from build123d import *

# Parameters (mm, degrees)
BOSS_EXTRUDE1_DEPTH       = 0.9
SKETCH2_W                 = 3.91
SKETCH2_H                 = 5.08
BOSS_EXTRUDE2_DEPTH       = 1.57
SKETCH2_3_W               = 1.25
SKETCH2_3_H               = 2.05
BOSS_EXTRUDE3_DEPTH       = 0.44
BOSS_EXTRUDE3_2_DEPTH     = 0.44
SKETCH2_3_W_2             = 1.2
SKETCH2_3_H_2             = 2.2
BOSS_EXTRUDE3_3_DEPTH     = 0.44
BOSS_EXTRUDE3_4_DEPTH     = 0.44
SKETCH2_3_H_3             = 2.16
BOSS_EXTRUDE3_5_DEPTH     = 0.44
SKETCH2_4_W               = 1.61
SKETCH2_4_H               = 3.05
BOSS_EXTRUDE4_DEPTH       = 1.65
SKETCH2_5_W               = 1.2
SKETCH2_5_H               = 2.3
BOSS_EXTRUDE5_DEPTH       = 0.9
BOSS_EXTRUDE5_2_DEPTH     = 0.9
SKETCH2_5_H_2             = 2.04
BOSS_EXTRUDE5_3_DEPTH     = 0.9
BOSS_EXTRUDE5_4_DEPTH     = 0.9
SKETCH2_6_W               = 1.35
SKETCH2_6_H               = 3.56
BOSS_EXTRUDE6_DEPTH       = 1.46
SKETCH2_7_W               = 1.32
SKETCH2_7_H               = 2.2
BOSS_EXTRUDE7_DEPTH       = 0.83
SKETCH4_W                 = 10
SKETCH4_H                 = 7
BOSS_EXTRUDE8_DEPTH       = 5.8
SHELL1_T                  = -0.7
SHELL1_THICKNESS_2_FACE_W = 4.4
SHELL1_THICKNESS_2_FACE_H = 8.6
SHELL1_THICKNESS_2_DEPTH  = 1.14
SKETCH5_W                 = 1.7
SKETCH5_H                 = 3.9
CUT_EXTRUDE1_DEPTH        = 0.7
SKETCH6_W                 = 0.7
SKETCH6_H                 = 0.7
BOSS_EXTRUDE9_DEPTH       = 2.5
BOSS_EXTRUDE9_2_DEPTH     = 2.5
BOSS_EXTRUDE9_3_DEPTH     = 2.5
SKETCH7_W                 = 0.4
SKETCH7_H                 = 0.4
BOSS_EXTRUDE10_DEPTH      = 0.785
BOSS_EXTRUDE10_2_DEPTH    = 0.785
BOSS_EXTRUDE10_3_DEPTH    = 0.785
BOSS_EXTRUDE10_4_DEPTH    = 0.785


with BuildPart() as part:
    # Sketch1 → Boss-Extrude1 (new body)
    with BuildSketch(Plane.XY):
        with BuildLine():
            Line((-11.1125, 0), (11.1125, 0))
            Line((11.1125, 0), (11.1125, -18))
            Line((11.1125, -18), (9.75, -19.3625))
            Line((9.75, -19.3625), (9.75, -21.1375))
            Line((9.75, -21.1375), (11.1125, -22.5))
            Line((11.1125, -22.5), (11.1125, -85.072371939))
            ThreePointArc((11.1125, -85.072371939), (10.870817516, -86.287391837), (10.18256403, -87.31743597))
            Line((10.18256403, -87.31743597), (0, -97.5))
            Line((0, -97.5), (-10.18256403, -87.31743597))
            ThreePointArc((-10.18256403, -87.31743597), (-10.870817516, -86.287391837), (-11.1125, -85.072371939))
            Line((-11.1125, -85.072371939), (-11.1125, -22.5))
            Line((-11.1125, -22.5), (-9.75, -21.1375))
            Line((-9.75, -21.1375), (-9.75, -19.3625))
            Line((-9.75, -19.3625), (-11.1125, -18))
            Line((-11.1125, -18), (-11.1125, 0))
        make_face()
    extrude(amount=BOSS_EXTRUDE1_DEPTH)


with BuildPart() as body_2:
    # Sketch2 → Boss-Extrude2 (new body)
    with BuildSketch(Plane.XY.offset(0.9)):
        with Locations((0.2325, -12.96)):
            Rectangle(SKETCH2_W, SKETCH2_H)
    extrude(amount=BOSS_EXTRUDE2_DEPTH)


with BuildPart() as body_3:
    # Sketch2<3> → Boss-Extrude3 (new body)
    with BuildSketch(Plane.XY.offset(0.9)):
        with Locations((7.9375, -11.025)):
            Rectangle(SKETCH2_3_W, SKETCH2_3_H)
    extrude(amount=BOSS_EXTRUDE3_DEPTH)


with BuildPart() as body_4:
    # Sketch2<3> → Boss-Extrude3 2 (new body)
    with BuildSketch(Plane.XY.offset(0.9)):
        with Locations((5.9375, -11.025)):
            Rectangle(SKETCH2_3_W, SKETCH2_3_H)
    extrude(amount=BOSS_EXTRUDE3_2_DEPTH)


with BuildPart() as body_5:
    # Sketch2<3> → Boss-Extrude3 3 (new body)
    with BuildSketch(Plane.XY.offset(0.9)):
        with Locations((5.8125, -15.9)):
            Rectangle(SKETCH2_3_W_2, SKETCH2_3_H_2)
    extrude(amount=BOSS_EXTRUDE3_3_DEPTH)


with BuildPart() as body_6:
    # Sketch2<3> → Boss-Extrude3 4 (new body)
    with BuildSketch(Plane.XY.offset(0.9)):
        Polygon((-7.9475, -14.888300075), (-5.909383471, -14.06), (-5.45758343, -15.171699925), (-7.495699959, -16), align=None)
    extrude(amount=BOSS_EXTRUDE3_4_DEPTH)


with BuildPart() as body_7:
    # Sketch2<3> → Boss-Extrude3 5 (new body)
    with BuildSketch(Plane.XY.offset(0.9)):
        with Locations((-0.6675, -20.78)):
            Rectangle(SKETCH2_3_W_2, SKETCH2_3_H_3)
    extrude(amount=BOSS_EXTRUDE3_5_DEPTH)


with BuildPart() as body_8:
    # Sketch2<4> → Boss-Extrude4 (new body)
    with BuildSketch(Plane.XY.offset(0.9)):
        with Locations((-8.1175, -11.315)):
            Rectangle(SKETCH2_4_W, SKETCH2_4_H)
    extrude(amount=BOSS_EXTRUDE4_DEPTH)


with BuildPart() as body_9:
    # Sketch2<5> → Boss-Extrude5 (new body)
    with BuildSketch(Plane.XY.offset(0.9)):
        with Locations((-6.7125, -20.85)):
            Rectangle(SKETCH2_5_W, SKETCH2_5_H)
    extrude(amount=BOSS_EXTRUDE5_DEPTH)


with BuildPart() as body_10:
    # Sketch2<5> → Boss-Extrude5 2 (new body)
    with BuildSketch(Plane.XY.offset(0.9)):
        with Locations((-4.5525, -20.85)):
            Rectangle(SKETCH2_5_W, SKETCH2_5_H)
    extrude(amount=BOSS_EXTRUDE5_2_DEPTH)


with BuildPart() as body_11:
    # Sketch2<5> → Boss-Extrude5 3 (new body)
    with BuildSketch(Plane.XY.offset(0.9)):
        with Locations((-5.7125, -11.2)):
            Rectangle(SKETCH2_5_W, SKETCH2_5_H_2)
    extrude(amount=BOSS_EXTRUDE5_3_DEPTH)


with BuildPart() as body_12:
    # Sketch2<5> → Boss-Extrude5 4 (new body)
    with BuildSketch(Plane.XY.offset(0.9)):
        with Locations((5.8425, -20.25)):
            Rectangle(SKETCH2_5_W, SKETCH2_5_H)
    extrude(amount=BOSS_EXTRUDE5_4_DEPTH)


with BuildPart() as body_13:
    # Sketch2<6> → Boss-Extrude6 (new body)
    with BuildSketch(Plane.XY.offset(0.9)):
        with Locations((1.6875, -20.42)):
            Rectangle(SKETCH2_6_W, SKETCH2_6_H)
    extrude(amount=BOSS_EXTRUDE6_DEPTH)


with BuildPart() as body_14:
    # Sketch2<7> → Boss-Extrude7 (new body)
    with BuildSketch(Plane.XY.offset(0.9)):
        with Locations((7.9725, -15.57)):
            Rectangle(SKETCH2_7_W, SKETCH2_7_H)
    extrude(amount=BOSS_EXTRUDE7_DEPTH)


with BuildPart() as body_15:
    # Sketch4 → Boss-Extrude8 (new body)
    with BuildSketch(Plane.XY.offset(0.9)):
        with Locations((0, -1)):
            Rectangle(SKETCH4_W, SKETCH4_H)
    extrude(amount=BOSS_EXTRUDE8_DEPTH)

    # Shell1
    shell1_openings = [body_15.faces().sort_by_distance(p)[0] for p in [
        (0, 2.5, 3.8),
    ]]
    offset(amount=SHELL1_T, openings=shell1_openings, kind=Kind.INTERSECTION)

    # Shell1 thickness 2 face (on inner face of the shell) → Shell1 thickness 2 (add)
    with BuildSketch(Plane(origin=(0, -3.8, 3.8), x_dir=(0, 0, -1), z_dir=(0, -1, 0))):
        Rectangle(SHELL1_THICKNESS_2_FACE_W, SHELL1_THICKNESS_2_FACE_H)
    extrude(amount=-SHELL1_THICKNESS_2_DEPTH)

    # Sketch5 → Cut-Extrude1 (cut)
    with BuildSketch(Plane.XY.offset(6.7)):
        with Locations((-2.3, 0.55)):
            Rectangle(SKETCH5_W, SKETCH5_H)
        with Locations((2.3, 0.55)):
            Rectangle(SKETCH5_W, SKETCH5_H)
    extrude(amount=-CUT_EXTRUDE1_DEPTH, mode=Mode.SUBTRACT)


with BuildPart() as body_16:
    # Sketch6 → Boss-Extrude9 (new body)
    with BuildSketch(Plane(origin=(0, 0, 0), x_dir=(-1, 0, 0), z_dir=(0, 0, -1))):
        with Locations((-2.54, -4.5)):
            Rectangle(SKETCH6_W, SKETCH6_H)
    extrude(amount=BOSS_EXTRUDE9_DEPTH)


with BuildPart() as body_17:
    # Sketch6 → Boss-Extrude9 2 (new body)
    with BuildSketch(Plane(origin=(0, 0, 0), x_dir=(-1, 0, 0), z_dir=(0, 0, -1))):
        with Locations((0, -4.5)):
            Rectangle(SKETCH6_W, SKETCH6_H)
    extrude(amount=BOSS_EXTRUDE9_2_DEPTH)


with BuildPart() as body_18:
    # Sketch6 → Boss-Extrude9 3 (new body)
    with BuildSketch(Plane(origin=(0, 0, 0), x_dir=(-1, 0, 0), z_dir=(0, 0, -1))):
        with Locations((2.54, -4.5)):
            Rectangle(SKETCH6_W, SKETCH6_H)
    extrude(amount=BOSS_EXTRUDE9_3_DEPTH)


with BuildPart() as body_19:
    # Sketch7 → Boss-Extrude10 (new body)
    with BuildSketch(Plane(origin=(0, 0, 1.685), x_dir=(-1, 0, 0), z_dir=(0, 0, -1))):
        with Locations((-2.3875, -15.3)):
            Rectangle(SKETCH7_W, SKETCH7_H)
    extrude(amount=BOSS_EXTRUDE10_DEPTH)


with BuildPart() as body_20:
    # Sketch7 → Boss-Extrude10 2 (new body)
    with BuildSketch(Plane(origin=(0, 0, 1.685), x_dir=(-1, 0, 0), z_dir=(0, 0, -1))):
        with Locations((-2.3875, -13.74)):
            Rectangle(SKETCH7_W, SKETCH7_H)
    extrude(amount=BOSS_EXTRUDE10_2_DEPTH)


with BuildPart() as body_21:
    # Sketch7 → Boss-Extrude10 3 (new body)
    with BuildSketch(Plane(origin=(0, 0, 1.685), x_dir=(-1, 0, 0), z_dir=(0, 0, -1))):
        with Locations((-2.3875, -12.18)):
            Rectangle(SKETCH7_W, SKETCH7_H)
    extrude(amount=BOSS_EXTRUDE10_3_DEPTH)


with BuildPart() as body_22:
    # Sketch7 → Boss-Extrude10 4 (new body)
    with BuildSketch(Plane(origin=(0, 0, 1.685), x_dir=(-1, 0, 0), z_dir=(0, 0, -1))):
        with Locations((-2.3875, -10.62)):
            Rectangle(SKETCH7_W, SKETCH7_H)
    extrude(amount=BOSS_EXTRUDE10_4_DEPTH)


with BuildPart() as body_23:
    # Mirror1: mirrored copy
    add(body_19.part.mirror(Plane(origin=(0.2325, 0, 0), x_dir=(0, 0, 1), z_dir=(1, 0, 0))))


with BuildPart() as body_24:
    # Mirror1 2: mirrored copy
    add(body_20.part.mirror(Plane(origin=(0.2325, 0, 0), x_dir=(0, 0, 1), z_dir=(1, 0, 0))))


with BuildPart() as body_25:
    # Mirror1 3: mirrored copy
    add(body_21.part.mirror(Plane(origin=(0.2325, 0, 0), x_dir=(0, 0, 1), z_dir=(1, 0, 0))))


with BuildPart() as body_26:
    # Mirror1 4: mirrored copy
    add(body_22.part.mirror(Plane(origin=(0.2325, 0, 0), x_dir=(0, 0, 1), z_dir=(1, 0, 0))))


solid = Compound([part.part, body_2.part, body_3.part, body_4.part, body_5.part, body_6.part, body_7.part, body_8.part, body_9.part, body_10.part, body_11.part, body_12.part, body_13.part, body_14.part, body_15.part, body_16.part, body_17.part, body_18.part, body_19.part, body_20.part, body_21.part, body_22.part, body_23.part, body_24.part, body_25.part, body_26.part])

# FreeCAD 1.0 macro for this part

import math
import FreeCAD as App
import Part
import Sketcher
Q = App.Units.Quantity


def faces_at(feature, points):
    """Names of the faces that lie closest to the given points."""
    faces = feature.Shape.Faces
    near = lambda p: min(range(len(faces)), key=lambda i: faces[i].distToShape(Part.Vertex(*p))[0])
    return sorted({f"Face{near(p) + 1}" for p in points})

doc = App.newDocument("Part")
body = doc.addObject("PartDesign::Body", "Body")

# Sketch on XY plane
sketch1 = doc.addObject("Sketcher::SketchObject", "Sketch")
body.addObject(sketch1)
sketch1.AttachmentSupport = (doc.XY_Plane, [""])
sketch1.MapMode = "FlatFace"
sketch1.addGeometry([
    Part.LineSegment(App.Vector(11.1, 0, 0), App.Vector(-11.1, 0, 0)),  # 0
    Part.LineSegment(App.Vector(-11.1, 0, 0), App.Vector(-11.1, -18, 0)),  # 1
    Part.LineSegment(App.Vector(-11.1, -18, 0), App.Vector(-9.8, -19.4, 0)),  # 2
    Part.LineSegment(App.Vector(-9.8, -19.4, 0), App.Vector(-9.8, -21.1, 0)),  # 3
    Part.LineSegment(App.Vector(-9.8, -21.1, 0), App.Vector(-11.1, -22.5, 0)),  # 4
    Part.LineSegment(App.Vector(-11.1, -22.5, 0), App.Vector(-11.1, -85.1, 0)),  # 5
    Part.ArcOfCircle(Part.Circle(App.Vector(-7.9, -85.1, 0), App.Vector(0, 0, 1), 3.2), math.radians(180), math.radians(225)),  # 6
    Part.LineSegment(App.Vector(-10.2, -87.3, 0), App.Vector(0, -97.5, 0)),  # 7
    Part.LineSegment(App.Vector(0, -97.5, 0), App.Vector(10.2, -87.3, 0)),  # 8
    Part.ArcOfCircle(Part.Circle(App.Vector(7.9, -85.1, 0), App.Vector(0, 0, 1), 3.2), math.radians(-45), math.radians(0)),  # 9
    Part.LineSegment(App.Vector(11.1, -85.1, 0), App.Vector(11.1, -22.5, 0)),  # 10
    Part.LineSegment(App.Vector(11.1, -22.5, 0), App.Vector(9.8, -21.1, 0)),  # 11
    Part.LineSegment(App.Vector(9.8, -21.1, 0), App.Vector(9.8, -19.4, 0)),  # 12
    Part.LineSegment(App.Vector(9.8, -19.4, 0), App.Vector(11.1, -18, 0)),  # 13
    Part.LineSegment(App.Vector(11.1, -18, 0), App.Vector(11.1, 0, 0)),  # 14
], False)
sketch1.addConstraint([
    Sketcher.Constraint("Coincident", 0, 2, 1, 1),
    Sketcher.Constraint("Coincident", 1, 2, 2, 1),
    Sketcher.Constraint("Coincident", 2, 2, 3, 1),
    Sketcher.Constraint("Coincident", 3, 2, 4, 1),
    Sketcher.Constraint("Coincident", 4, 2, 5, 1),
    Sketcher.Constraint("Tangent", 5, 2, 6, 1),
    Sketcher.Constraint("Tangent", 6, 2, 7, 1),
    Sketcher.Constraint("Coincident", 7, 2, 8, 1),
    Sketcher.Constraint("Tangent", 8, 2, 9, 1),
    Sketcher.Constraint("Tangent", 9, 2, 10, 1),
    Sketcher.Constraint("Coincident", 10, 2, 11, 1),
    Sketcher.Constraint("Coincident", 11, 2, 12, 1),
    Sketcher.Constraint("Coincident", 12, 2, 13, 1),
    Sketcher.Constraint("Coincident", 13, 2, 14, 1),
    Sketcher.Constraint("Coincident", 14, 2, 0, 1),
    Sketcher.Constraint("Horizontal", 0),
    Sketcher.Constraint("Vertical", 1),
    Sketcher.Constraint("Vertical", 3),
    Sketcher.Constraint("Vertical", 5),
    Sketcher.Constraint("Vertical", 10),
    Sketcher.Constraint("Vertical", 12),
    Sketcher.Constraint("Vertical", 14),
    Sketcher.Constraint("Equal", 6, 9),
    Sketcher.Constraint("Symmetric", 0, 2, 14, 2, -1, 1),
    Sketcher.Constraint("Symmetric", 6, 3, 9, 3, -2),
    Sketcher.Constraint("Symmetric", 3, 2, 11, 2, -2),
    Sketcher.Constraint("PointOnObject", 7, 2, -2),
    Sketcher.Constraint("Perpendicular", 2, 4),
    Sketcher.Constraint("Perpendicular", 4, 7),
    Sketcher.Constraint("Perpendicular", 7, 8),
    Sketcher.Constraint("Perpendicular", 8, 11),
    Sketcher.Constraint("Perpendicular", 11, 13),
    Sketcher.Constraint("Horizontal", 2, 2, 12, 2),
    Sketcher.Constraint("Vertical", 1, 2, 4, 2),
    Sketcher.Constraint("DistanceY", 1, 2, 1, 1, Q("18 mm")),
    Sketcher.Constraint("Radius", 6, Q("3.175 mm")),
    Sketcher.Constraint("DistanceY", 7, 2, 4, 2, Q("75 mm")),
    Sketcher.Constraint("DistanceY", 4, 2, -1, 1, Q("22.5 mm")),
    Sketcher.Constraint("DistanceX", 3, 2, 11, 2, Q("19.5 mm")),
    Sketcher.Constraint("DistanceX", 0, 2, 0, 1, Q("22.225 mm")),
])
pad1 = doc.addObject("PartDesign::Pad", "Pad")
body.addObject(pad1)
pad1.Profile = sketch1
pad1.Length = 0.9
body2 = doc.addObject("PartDesign::Body", "Body001")

# Sketch on XY plane
sketch2 = doc.addObject("Sketcher::SketchObject", "Sketch001")
body2.addObject(sketch2)
sketch2.AttachmentSupport = (doc.getObject("XY_Plane001"), [""])
sketch2.MapMode = "FlatFace"
sketch2.AttachmentOffset = App.Placement(App.Vector(0, 0, 0.9), App.Rotation())
sketch2.addGeometry([
    Part.LineSegment(App.Vector(-1.7, -10.4, 0), App.Vector(-1.7, -15.5, 0)),
    Part.LineSegment(App.Vector(-1.7, -15.5, 0), App.Vector(2.2, -15.5, 0)),
    Part.LineSegment(App.Vector(2.2, -15.5, 0), App.Vector(2.2, -10.4, 0)),
    Part.LineSegment(App.Vector(2.2, -10.4, 0), App.Vector(-1.7, -10.4, 0)),
], False)
sketch2.addConstraint([
    Sketcher.Constraint("Coincident", 0, 2, 1, 1),
    Sketcher.Constraint("Coincident", 1, 2, 2, 1),
    Sketcher.Constraint("Coincident", 2, 2, 3, 1),
    Sketcher.Constraint("Coincident", 3, 2, 0, 1),
    Sketcher.Constraint("Vertical", 0),
    Sketcher.Constraint("Horizontal", 1),
    Sketcher.Constraint("Vertical", 2),
    Sketcher.Constraint("Horizontal", 3),
    Sketcher.Constraint("DistanceX", 1, 1, 1, 2, Q("3.91 mm")),
    Sketcher.Constraint("DistanceY", 0, 2, 0, 1, Q("5.08 mm")),
    Sketcher.Constraint("DistanceY", 0, 2, -1, 1, Q("15.5 mm")),
    Sketcher.Constraint("DistanceX", 0, 2, -1, 1, Q("1.7225 mm")),
])
pad2 = doc.addObject("PartDesign::Pad", "Pad001")
body2.addObject(pad2)
pad2.Profile = sketch2
pad2.Length = 1.57
body3 = doc.addObject("PartDesign::Body", "Body002")

# Sketch on XY plane
sketch3 = doc.addObject("Sketcher::SketchObject", "Sketch002")
body3.addObject(sketch3)
sketch3.AttachmentSupport = (doc.getObject("XY_Plane002"), [""])
sketch3.MapMode = "FlatFace"
sketch3.AttachmentOffset = App.Placement(App.Vector(0, 0, 0.9), App.Rotation())
sketch3.addGeometry([
    Part.LineSegment(App.Vector(7.3, -10, 0), App.Vector(7.3, -12.1, 0)),
    Part.LineSegment(App.Vector(7.3, -12.1, 0), App.Vector(8.6, -12.1, 0)),
    Part.LineSegment(App.Vector(8.6, -12.1, 0), App.Vector(8.6, -10, 0)),
    Part.LineSegment(App.Vector(8.6, -10, 0), App.Vector(7.3, -10, 0)),
], False)
sketch3.addConstraint([
    Sketcher.Constraint("Coincident", 0, 2, 1, 1),
    Sketcher.Constraint("Coincident", 1, 2, 2, 1),
    Sketcher.Constraint("Coincident", 2, 2, 3, 1),
    Sketcher.Constraint("Coincident", 3, 2, 0, 1),
    Sketcher.Constraint("Vertical", 0),
    Sketcher.Constraint("Horizontal", 1),
    Sketcher.Constraint("Vertical", 2),
    Sketcher.Constraint("Horizontal", 3),
    Sketcher.Constraint("DistanceY", 2, 2, -1, 1, Q("10 mm")),
    Sketcher.Constraint("DistanceX", 1, 1, 1, 2, Q("1.25 mm")),
    Sketcher.Constraint("DistanceY", 0, 2, 0, 1, Q("2.05 mm")),
    Sketcher.Constraint("DistanceX", -1, 1, 0, 2, Q("7.3125 mm")),
])
pad3 = doc.addObject("PartDesign::Pad", "Pad002")
body3.addObject(pad3)
pad3.Profile = sketch3
pad3.Length = 0.44
body4 = doc.addObject("PartDesign::Body", "Body003")

# Sketch on XY plane
sketch4 = doc.addObject("Sketcher::SketchObject", "Sketch003")
body4.addObject(sketch4)
sketch4.AttachmentSupport = (doc.getObject("XY_Plane003"), [""])
sketch4.MapMode = "FlatFace"
sketch4.AttachmentOffset = App.Placement(App.Vector(0, 0, 0.9), App.Rotation())
sketch4.addGeometry([
    Part.LineSegment(App.Vector(5.3, -10, 0), App.Vector(5.3, -12.1, 0)),
    Part.LineSegment(App.Vector(5.3, -12.1, 0), App.Vector(6.6, -12.1, 0)),
    Part.LineSegment(App.Vector(6.6, -12.1, 0), App.Vector(6.6, -10, 0)),
    Part.LineSegment(App.Vector(6.6, -10, 0), App.Vector(5.3, -10, 0)),
], False)
sketch4.addConstraint([
    Sketcher.Constraint("Coincident", 0, 2, 1, 1),
    Sketcher.Constraint("Coincident", 1, 2, 2, 1),
    Sketcher.Constraint("Coincident", 2, 2, 3, 1),
    Sketcher.Constraint("Coincident", 3, 2, 0, 1),
    Sketcher.Constraint("Vertical", 0),
    Sketcher.Constraint("Horizontal", 1),
    Sketcher.Constraint("Vertical", 2),
    Sketcher.Constraint("Horizontal", 3),
    Sketcher.Constraint("DistanceY", 2, 2, -1, 1, Q("10 mm")),
    Sketcher.Constraint("DistanceX", 1, 1, 1, 2, Q("1.25 mm")),
    Sketcher.Constraint("DistanceY", 0, 2, 0, 1, Q("2.05 mm")),
    Sketcher.Constraint("DistanceX", -1, 1, 0, 2, Q("5.3125 mm")),
])
pad4 = doc.addObject("PartDesign::Pad", "Pad003")
body4.addObject(pad4)
pad4.Profile = sketch4
pad4.Length = 0.44
body5 = doc.addObject("PartDesign::Body", "Body004")

# Sketch on XY plane
sketch5 = doc.addObject("Sketcher::SketchObject", "Sketch004")
body5.addObject(sketch5)
sketch5.AttachmentSupport = (doc.getObject("XY_Plane004"), [""])
sketch5.MapMode = "FlatFace"
sketch5.AttachmentOffset = App.Placement(App.Vector(0, 0, 0.9), App.Rotation())
sketch5.addGeometry([
    Part.LineSegment(App.Vector(5.2, -14.8, 0), App.Vector(5.2, -17, 0)),
    Part.LineSegment(App.Vector(5.2, -17, 0), App.Vector(6.4, -17, 0)),
    Part.LineSegment(App.Vector(6.4, -17, 0), App.Vector(6.4, -14.8, 0)),
    Part.LineSegment(App.Vector(6.4, -14.8, 0), App.Vector(5.2, -14.8, 0)),
], False)
sketch5.addConstraint([
    Sketcher.Constraint("Coincident", 0, 2, 1, 1),
    Sketcher.Constraint("Coincident", 1, 2, 2, 1),
    Sketcher.Constraint("Coincident", 2, 2, 3, 1),
    Sketcher.Constraint("Coincident", 3, 2, 0, 1),
    Sketcher.Constraint("Vertical", 0),
    Sketcher.Constraint("Horizontal", 1),
    Sketcher.Constraint("Vertical", 2),
    Sketcher.Constraint("Horizontal", 3),
    Sketcher.Constraint("DistanceX", 1, 1, 1, 2, Q("1.2 mm")),
    Sketcher.Constraint("DistanceY", 0, 2, 0, 1, Q("2.2 mm")),
    Sketcher.Constraint("DistanceY", 0, 2, -1, 1, Q("17 mm")),
    Sketcher.Constraint("DistanceX", -1, 1, 0, 2, Q("5.2125 mm")),
])
pad5 = doc.addObject("PartDesign::Pad", "Pad004")
body5.addObject(pad5)
pad5.Profile = sketch5
pad5.Length = 0.44
body6 = doc.addObject("PartDesign::Body", "Body005")

# Sketch on XY plane
sketch6 = doc.addObject("Sketcher::SketchObject", "Sketch005")
body6.addObject(sketch6)
sketch6.AttachmentSupport = (doc.getObject("XY_Plane005"), [""])
sketch6.MapMode = "FlatFace"
sketch6.AttachmentOffset = App.Placement(App.Vector(0, 0, 0.9), App.Rotation())
sketch6.addGeometry([
    Part.LineSegment(App.Vector(-5.9, -14.1, 0), App.Vector(-7.9, -14.9, 0)),
    Part.LineSegment(App.Vector(-7.9, -14.9, 0), App.Vector(-7.5, -16, 0)),
    Part.LineSegment(App.Vector(-7.5, -16, 0), App.Vector(-5.5, -15.2, 0)),
    Part.LineSegment(App.Vector(-5.5, -15.2, 0), App.Vector(-5.9, -14.1, 0)),
], False)
sketch6.addConstraint([
    Sketcher.Constraint("Coincident", 0, 2, 1, 1),
    Sketcher.Constraint("Coincident", 1, 2, 2, 1),
    Sketcher.Constraint("Coincident", 2, 2, 3, 1),
    Sketcher.Constraint("Coincident", 3, 2, 0, 1),
    Sketcher.Constraint("Perpendicular", 0, 1),
    Sketcher.Constraint("Perpendicular", 1, 2),
    Sketcher.Constraint("Perpendicular", 2, 3),
    Sketcher.Constraint("DistanceY", 1, 2, -1, 1, Q("16 mm")),
    Sketcher.Constraint("Distance", 0, Q("2.2 mm")),
    Sketcher.Constraint("Distance", 1, Q("1.2 mm")),
    Sketcher.Constraint("DistanceY", 3, 2, -1, 1, Q("14.06 mm")),
    Sketcher.Constraint("DistanceX", 0, 2, -1, 1, Q("7.9475 mm")),
])
pad6 = doc.addObject("PartDesign::Pad", "Pad005")
body6.addObject(pad6)
pad6.Profile = sketch6
pad6.Length = 0.44
body7 = doc.addObject("PartDesign::Body", "Body006")

# Sketch on XY plane
sketch7 = doc.addObject("Sketcher::SketchObject", "Sketch006")
body7.addObject(sketch7)
sketch7.AttachmentSupport = (doc.getObject("XY_Plane006"), [""])
sketch7.MapMode = "FlatFace"
sketch7.AttachmentOffset = App.Placement(App.Vector(0, 0, 0.9), App.Rotation())
sketch7.addGeometry([
    Part.LineSegment(App.Vector(-1.3, -19.7, 0), App.Vector(-1.3, -21.9, 0)),
    Part.LineSegment(App.Vector(-1.3, -21.9, 0), App.Vector(-0.1, -21.9, 0)),
    Part.LineSegment(App.Vector(-0.1, -21.9, 0), App.Vector(-0.1, -19.7, 0)),
    Part.LineSegment(App.Vector(-0.1, -19.7, 0), App.Vector(-1.3, -19.7, 0)),
], False)
sketch7.addConstraint([
    Sketcher.Constraint("Coincident", 0, 2, 1, 1),
    Sketcher.Constraint("Coincident", 1, 2, 2, 1),
    Sketcher.Constraint("Coincident", 2, 2, 3, 1),
    Sketcher.Constraint("Coincident", 3, 2, 0, 1),
    Sketcher.Constraint("Vertical", 0),
    Sketcher.Constraint("Horizontal", 1),
    Sketcher.Constraint("Vertical", 2),
    Sketcher.Constraint("Horizontal", 3),
    Sketcher.Constraint("DistanceX", 1, 1, 1, 2, Q("1.2 mm")),
    Sketcher.Constraint("DistanceY", 0, 2, 0, 1, Q("2.16 mm")),
    Sketcher.Constraint("DistanceY", 2, 2, -1, 1, Q("19.7 mm")),
    Sketcher.Constraint("DistanceX", 0, 2, -1, 1, Q("1.2675 mm")),
])
pad7 = doc.addObject("PartDesign::Pad", "Pad006")
body7.addObject(pad7)
pad7.Profile = sketch7
pad7.Length = 0.44
body8 = doc.addObject("PartDesign::Body", "Body007")

# Sketch on XY plane
sketch8 = doc.addObject("Sketcher::SketchObject", "Sketch007")
body8.addObject(sketch8)
sketch8.AttachmentSupport = (doc.getObject("XY_Plane007"), [""])
sketch8.MapMode = "FlatFace"
sketch8.AttachmentOffset = App.Placement(App.Vector(0, 0, 0.9), App.Rotation())
sketch8.addGeometry([
    Part.LineSegment(App.Vector(-8.9, -9.8, 0), App.Vector(-8.9, -12.8, 0)),
    Part.LineSegment(App.Vector(-8.9, -12.8, 0), App.Vector(-7.3, -12.8, 0)),
    Part.LineSegment(App.Vector(-7.3, -12.8, 0), App.Vector(-7.3, -9.8, 0)),
    Part.LineSegment(App.Vector(-7.3, -9.8, 0), App.Vector(-8.9, -9.8, 0)),
], False)
sketch8.addConstraint([
    Sketcher.Constraint("Coincident", 0, 2, 1, 1),
    Sketcher.Constraint("Coincident", 1, 2, 2, 1),
    Sketcher.Constraint("Coincident", 2, 2, 3, 1),
    Sketcher.Constraint("Coincident", 3, 2, 0, 1),
    Sketcher.Constraint("Vertical", 0),
    Sketcher.Constraint("Horizontal", 1),
    Sketcher.Constraint("Vertical", 2),
    Sketcher.Constraint("Horizontal", 3),
    Sketcher.Constraint("DistanceX", 1, 1, 1, 2, Q("1.61 mm")),
    Sketcher.Constraint("DistanceY", 0, 2, 0, 1, Q("3.05 mm")),
    Sketcher.Constraint("DistanceY", 0, 2, -1, 1, Q("12.84 mm")),
    Sketcher.Constraint("DistanceX", 0, 2, -1, 1, Q("8.9225 mm")),
])
pad8 = doc.addObject("PartDesign::Pad", "Pad007")
body8.addObject(pad8)
pad8.Profile = sketch8
pad8.Length = 1.65
body9 = doc.addObject("PartDesign::Body", "Body008")

# Sketch on XY plane
sketch9 = doc.addObject("Sketcher::SketchObject", "Sketch008")
body9.addObject(sketch9)
sketch9.AttachmentSupport = (doc.getObject("XY_Plane008"), [""])
sketch9.MapMode = "FlatFace"
sketch9.AttachmentOffset = App.Placement(App.Vector(0, 0, 0.9), App.Rotation())
sketch9.addGeometry([
    Part.LineSegment(App.Vector(-7.3, -19.7, 0), App.Vector(-7.3, -22, 0)),
    Part.LineSegment(App.Vector(-7.3, -22, 0), App.Vector(-6.1, -22, 0)),
    Part.LineSegment(App.Vector(-6.1, -22, 0), App.Vector(-6.1, -19.7, 0)),
    Part.LineSegment(App.Vector(-6.1, -19.7, 0), App.Vector(-7.3, -19.7, 0)),
], False)
sketch9.addConstraint([
    Sketcher.Constraint("Coincident", 0, 2, 1, 1),
    Sketcher.Constraint("Coincident", 1, 2, 2, 1),
    Sketcher.Constraint("Coincident", 2, 2, 3, 1),
    Sketcher.Constraint("Coincident", 3, 2, 0, 1),
    Sketcher.Constraint("Vertical", 0),
    Sketcher.Constraint("Horizontal", 1),
    Sketcher.Constraint("Vertical", 2),
    Sketcher.Constraint("Horizontal", 3),
    Sketcher.Constraint("DistanceX", 1, 1, 1, 2, Q("1.2 mm")),
    Sketcher.Constraint("DistanceY", 0, 2, 0, 1, Q("2.3 mm")),
    Sketcher.Constraint("DistanceY", 0, 2, -1, 1, Q("22 mm")),
    Sketcher.Constraint("DistanceX", 0, 2, -1, 1, Q("7.3125 mm")),
])
pad9 = doc.addObject("PartDesign::Pad", "Pad008")
body9.addObject(pad9)
pad9.Profile = sketch9
pad9.Length = 0.9
body10 = doc.addObject("PartDesign::Body", "Body009")

# Sketch on XY plane
sketch10 = doc.addObject("Sketcher::SketchObject", "Sketch009")
body10.addObject(sketch10)
sketch10.AttachmentSupport = (doc.getObject("XY_Plane009"), [""])
sketch10.MapMode = "FlatFace"
sketch10.AttachmentOffset = App.Placement(App.Vector(0, 0, 0.9), App.Rotation())
sketch10.addGeometry([
    Part.LineSegment(App.Vector(-5.2, -19.7, 0), App.Vector(-5.2, -22, 0)),
    Part.LineSegment(App.Vector(-5.2, -22, 0), App.Vector(-4, -22, 0)),
    Part.LineSegment(App.Vector(-4, -22, 0), App.Vector(-4, -19.7, 0)),
    Part.LineSegment(App.Vector(-4, -19.7, 0), App.Vector(-5.2, -19.7, 0)),
], False)
sketch10.addConstraint([
    Sketcher.Constraint("Coincident", 0, 2, 1, 1),
    Sketcher.Constraint("Coincident", 1, 2, 2, 1),
    Sketcher.Constraint("Coincident", 2, 2, 3, 1),
    Sketcher.Constraint("Coincident", 3, 2, 0, 1),
    Sketcher.Constraint("Vertical", 0),
    Sketcher.Constraint("Horizontal", 1),
    Sketcher.Constraint("Vertical", 2),
    Sketcher.Constraint("Horizontal", 3),
    Sketcher.Constraint("DistanceX", 1, 1, 1, 2, Q("1.2 mm")),
    Sketcher.Constraint("DistanceY", 0, 2, 0, 1, Q("2.3 mm")),
    Sketcher.Constraint("DistanceY", 0, 2, -1, 1, Q("22 mm")),
    Sketcher.Constraint("DistanceX", 0, 2, -1, 1, Q("5.1525 mm")),
])
pad10 = doc.addObject("PartDesign::Pad", "Pad009")
body10.addObject(pad10)
pad10.Profile = sketch10
pad10.Length = 0.9
body11 = doc.addObject("PartDesign::Body", "Body010")

# Sketch on XY plane
sketch11 = doc.addObject("Sketcher::SketchObject", "Sketch010")
body11.addObject(sketch11)
sketch11.AttachmentSupport = (doc.getObject("XY_Plane010"), [""])
sketch11.MapMode = "FlatFace"
sketch11.AttachmentOffset = App.Placement(App.Vector(0, 0, 0.9), App.Rotation())
sketch11.addGeometry([
    Part.LineSegment(App.Vector(-6.3, -10.2, 0), App.Vector(-6.3, -12.2, 0)),
    Part.LineSegment(App.Vector(-6.3, -12.2, 0), App.Vector(-5.1, -12.2, 0)),
    Part.LineSegment(App.Vector(-5.1, -12.2, 0), App.Vector(-5.1, -10.2, 0)),
    Part.LineSegment(App.Vector(-5.1, -10.2, 0), App.Vector(-6.3, -10.2, 0)),
], False)
sketch11.addConstraint([
    Sketcher.Constraint("Coincident", 0, 2, 1, 1),
    Sketcher.Constraint("Coincident", 1, 2, 2, 1),
    Sketcher.Constraint("Coincident", 2, 2, 3, 1),
    Sketcher.Constraint("Coincident", 3, 2, 0, 1),
    Sketcher.Constraint("Vertical", 0),
    Sketcher.Constraint("Horizontal", 1),
    Sketcher.Constraint("Vertical", 2),
    Sketcher.Constraint("Horizontal", 3),
    Sketcher.Constraint("DistanceX", 1, 1, 1, 2, Q("1.2 mm")),
    Sketcher.Constraint("DistanceY", 0, 2, 0, 1, Q("2.04 mm")),
    Sketcher.Constraint("DistanceY", 0, 2, -1, 1, Q("12.22 mm")),
    Sketcher.Constraint("DistanceX", 0, 2, -1, 1, Q("6.3125 mm")),
])
pad11 = doc.addObject("PartDesign::Pad", "Pad010")
body11.addObject(pad11)
pad11.Profile = sketch11
pad11.Length = 0.9
body12 = doc.addObject("PartDesign::Body", "Body011")

# Sketch on XY plane
sketch12 = doc.addObject("Sketcher::SketchObject", "Sketch011")
body12.addObject(sketch12)
sketch12.AttachmentSupport = (doc.getObject("XY_Plane011"), [""])
sketch12.MapMode = "FlatFace"
sketch12.AttachmentOffset = App.Placement(App.Vector(0, 0, 0.9), App.Rotation())
sketch12.addGeometry([
    Part.LineSegment(App.Vector(5.2, -19.1, 0), App.Vector(5.2, -21.4, 0)),
    Part.LineSegment(App.Vector(5.2, -21.4, 0), App.Vector(6.4, -21.4, 0)),
    Part.LineSegment(App.Vector(6.4, -21.4, 0), App.Vector(6.4, -19.1, 0)),
    Part.LineSegment(App.Vector(6.4, -19.1, 0), App.Vector(5.2, -19.1, 0)),
], False)
sketch12.addConstraint([
    Sketcher.Constraint("Coincident", 0, 2, 1, 1),
    Sketcher.Constraint("Coincident", 1, 2, 2, 1),
    Sketcher.Constraint("Coincident", 2, 2, 3, 1),
    Sketcher.Constraint("Coincident", 3, 2, 0, 1),
    Sketcher.Constraint("Vertical", 0),
    Sketcher.Constraint("Horizontal", 1),
    Sketcher.Constraint("Vertical", 2),
    Sketcher.Constraint("Horizontal", 3),
    Sketcher.Constraint("DistanceX", 1, 1, 1, 2, Q("1.2 mm")),
    Sketcher.Constraint("DistanceY", 0, 2, 0, 1, Q("2.3 mm")),
    Sketcher.Constraint("DistanceY", 0, 2, -1, 1, Q("21.4 mm")),
    Sketcher.Constraint("DistanceX", -1, 1, 0, 2, Q("5.2425 mm")),
])
pad12 = doc.addObject("PartDesign::Pad", "Pad011")
body12.addObject(pad12)
pad12.Profile = sketch12
pad12.Length = 0.9
body13 = doc.addObject("PartDesign::Body", "Body012")

# Sketch on XY plane
sketch13 = doc.addObject("Sketcher::SketchObject", "Sketch012")
body13.addObject(sketch13)
sketch13.AttachmentSupport = (doc.getObject("XY_Plane012"), [""])
sketch13.MapMode = "FlatFace"
sketch13.AttachmentOffset = App.Placement(App.Vector(0, 0, 0.9), App.Rotation())
sketch13.addGeometry([
    Part.LineSegment(App.Vector(1, -18.6, 0), App.Vector(1, -22.2, 0)),
    Part.LineSegment(App.Vector(1, -22.2, 0), App.Vector(2.4, -22.2, 0)),
    Part.LineSegment(App.Vector(2.4, -22.2, 0), App.Vector(2.4, -18.6, 0)),
    Part.LineSegment(App.Vector(2.4, -18.6, 0), App.Vector(1, -18.6, 0)),
], False)
sketch13.addConstraint([
    Sketcher.Constraint("Coincident", 0, 2, 1, 1),
    Sketcher.Constraint("Coincident", 1, 2, 2, 1),
    Sketcher.Constraint("Coincident", 2, 2, 3, 1),
    Sketcher.Constraint("Coincident", 3, 2, 0, 1),
    Sketcher.Constraint("Vertical", 0),
    Sketcher.Constraint("Horizontal", 1),
    Sketcher.Constraint("Vertical", 2),
    Sketcher.Constraint("Horizontal", 3),
    Sketcher.Constraint("DistanceX", 1, 1, 1, 2, Q("1.35 mm")),
    Sketcher.Constraint("DistanceY", 0, 2, 0, 1, Q("3.56 mm")),
    Sketcher.Constraint("DistanceY", 0, 2, -1, 1, Q("22.2 mm")),
    Sketcher.Constraint("DistanceX", -1, 1, 0, 2, Q("1.0125 mm")),
])
pad13 = doc.addObject("PartDesign::Pad", "Pad012")
body13.addObject(pad13)
pad13.Profile = sketch13
pad13.Length = 1.46
body14 = doc.addObject("PartDesign::Body", "Body013")

# Sketch on XY plane
sketch14 = doc.addObject("Sketcher::SketchObject", "Sketch013")
body14.addObject(sketch14)
sketch14.AttachmentSupport = (doc.getObject("XY_Plane013"), [""])
sketch14.MapMode = "FlatFace"
sketch14.AttachmentOffset = App.Placement(App.Vector(0, 0, 0.9), App.Rotation())
sketch14.addGeometry([
    Part.LineSegment(App.Vector(7.3, -14.5, 0), App.Vector(7.3, -16.7, 0)),
    Part.LineSegment(App.Vector(7.3, -16.7, 0), App.Vector(8.6, -16.7, 0)),
    Part.LineSegment(App.Vector(8.6, -16.7, 0), App.Vector(8.6, -14.5, 0)),
    Part.LineSegment(App.Vector(8.6, -14.5, 0), App.Vector(7.3, -14.5, 0)),
], False)
sketch14.addConstraint([
    Sketcher.Constraint("Coincident", 0, 2, 1, 1),
    Sketcher.Constraint("Coincident", 1, 2, 2, 1),
    Sketcher.Constraint("Coincident", 2, 2, 3, 1),
    Sketcher.Constraint("Coincident", 3, 2, 0, 1),
    Sketcher.Constraint("Vertical", 0),
    Sketcher.Constraint("Horizontal", 1),
    Sketcher.Constraint("Vertical", 2),
    Sketcher.Constraint("Horizontal", 3),
    Sketcher.Constraint("DistanceY", 0, 2, 0, 1, Q("2.2 mm")),
    Sketcher.Constraint("DistanceX", 1, 1, 1, 2, Q("1.32 mm")),
    Sketcher.Constraint("DistanceY", 0, 2, -1, 1, Q("16.67 mm")),
    Sketcher.Constraint("DistanceX", -1, 1, 0, 2, Q("7.3125 mm")),
])
pad14 = doc.addObject("PartDesign::Pad", "Pad013")
body14.addObject(pad14)
pad14.Profile = sketch14
pad14.Length = 0.83
body15 = doc.addObject("PartDesign::Body", "Body014")

# Sketch on XY plane
sketch15 = doc.addObject("Sketcher::SketchObject", "Sketch014")
body15.addObject(sketch15)
sketch15.AttachmentSupport = (doc.getObject("XY_Plane014"), [""])
sketch15.MapMode = "FlatFace"
sketch15.AttachmentOffset = App.Placement(App.Vector(0, 0, 0.9), App.Rotation())
sketch15.addGeometry([
    Part.LineSegment(App.Vector(-5, 2, 0), App.Vector(-5, -4, 0)),
    Part.LineSegment(App.Vector(-5, -4, 0), App.Vector(5, -4, 0)),
    Part.LineSegment(App.Vector(5, -4, 0), App.Vector(5, 2, 0)),
    Part.LineSegment(App.Vector(5, 2, 0), App.Vector(-5, 2, 0)),
], False)
sketch15.addConstraint([
    Sketcher.Constraint("Coincident", 0, 2, 1, 1),
    Sketcher.Constraint("Coincident", 1, 2, 2, 1),
    Sketcher.Constraint("Coincident", 2, 2, 3, 1),
    Sketcher.Constraint("Coincident", 3, 2, 0, 1),
    Sketcher.Constraint("Vertical", 0),
    Sketcher.Constraint("Horizontal", 1),
    Sketcher.Constraint("Vertical", 2),
    Sketcher.Constraint("Horizontal", 3),
    Sketcher.Constraint("DistanceX", 1, 1, 1, 2, Q("10 mm")),
    Sketcher.Constraint("DistanceY", 0, 2, 0, 1, Q("7 mm")),
    Sketcher.Constraint("DistanceX", 0, 2, -1, 1, Q("5 mm")),
    Sketcher.Constraint("DistanceY", 0, 2, -1, 1, Q("4.5 mm")),
])
pad15 = doc.addObject("PartDesign::Pad", "Pad014")
body15.addObject(pad15)
pad15.Profile = sketch15
pad15.Length = 5.8
doc.recompute()

thickness = doc.addObject("PartDesign::Thickness", "Thickness")
body15.addObject(thickness)
thickness.Base = (pad15, faces_at(pad15, [(0, 2.5, 3.8)]))
thickness.Value = 0.7
thickness.Reversed = True
thickness.Join = "Intersection"

# Sketch on XZ plane
sketch16 = doc.addObject("Sketcher::SketchObject", "Sketch015")
body15.addObject(sketch16)
sketch16.AttachmentSupport = (doc.getObject("XZ_Plane014"), [""])
sketch16.MapMode = "FlatFace"
sketch16.AttachmentOffset = App.Placement(App.Vector(0, 0, 3.8), App.Rotation())
sketch16.addGeometry([
    Part.LineSegment(App.Vector(4.3, 6, 0), App.Vector(-4.3, 6, 0)),
    Part.LineSegment(App.Vector(-4.3, 6, 0), App.Vector(-4.3, 1.6, 0)),
    Part.LineSegment(App.Vector(-4.3, 1.6, 0), App.Vector(4.3, 1.6, 0)),
    Part.LineSegment(App.Vector(4.3, 1.6, 0), App.Vector(4.3, 6, 0)),
], False)
sketch16.addConstraint([
    Sketcher.Constraint("Coincident", 0, 2, 1, 1),
    Sketcher.Constraint("Coincident", 1, 2, 2, 1),
    Sketcher.Constraint("Coincident", 2, 2, 3, 1),
    Sketcher.Constraint("Coincident", 3, 2, 0, 1),
    Sketcher.Constraint("Horizontal", 0),
    Sketcher.Constraint("Vertical", 1),
    Sketcher.Constraint("Horizontal", 2),
    Sketcher.Constraint("Vertical", 3),
    Sketcher.Constraint("DistanceX", 0, 2, 0, 1, Q("8.6 mm")),
    Sketcher.Constraint("DistanceY", 1, 2, 1, 1, Q("4.4 mm")),
    Sketcher.Constraint("DistanceY", -1, 1, 0, 2, Q("6 mm")),
    Sketcher.Constraint("DistanceX", 0, 2, -1, 1, Q("4.3 mm")),
])
pad16 = doc.addObject("PartDesign::Pad", "Pad015")
body15.addObject(pad16)
pad16.Profile = sketch16
pad16.Length = 1.14
pad16.Reversed = True

# Sketch on XY plane
sketch17 = doc.addObject("Sketcher::SketchObject", "Sketch016")
body15.addObject(sketch17)
sketch17.AttachmentSupport = (doc.getObject("XY_Plane014"), [""])
sketch17.MapMode = "FlatFace"
sketch17.AttachmentOffset = App.Placement(App.Vector(0, 0, 6.7), App.Rotation())
sketch17.addGeometry([
    Part.LineSegment(App.Vector(-3.1, 2.5, 0), App.Vector(-3.1, -1.4, 0)),  # 0
    Part.LineSegment(App.Vector(-3.1, -1.4, 0), App.Vector(-1.4, -1.4, 0)),  # 1
    Part.LineSegment(App.Vector(-1.4, -1.4, 0), App.Vector(-1.4, 2.5, 0)),  # 2
    Part.LineSegment(App.Vector(-1.4, 2.5, 0), App.Vector(-3.1, 2.5, 0)),  # 3
    Part.LineSegment(App.Vector(1.4, 2.5, 0), App.Vector(1.4, -1.4, 0)),  # 4
    Part.LineSegment(App.Vector(1.4, -1.4, 0), App.Vector(3.1, -1.4, 0)),  # 5
    Part.LineSegment(App.Vector(3.1, -1.4, 0), App.Vector(3.1, 2.5, 0)),  # 6
    Part.LineSegment(App.Vector(3.1, 2.5, 0), App.Vector(1.4, 2.5, 0)),  # 7
], False)
sketch17.addConstraint([
    Sketcher.Constraint("Coincident", 0, 2, 1, 1),
    Sketcher.Constraint("Coincident", 1, 2, 2, 1),
    Sketcher.Constraint("Coincident", 2, 2, 3, 1),
    Sketcher.Constraint("Coincident", 3, 2, 0, 1),
    Sketcher.Constraint("Coincident", 4, 2, 5, 1),
    Sketcher.Constraint("Coincident", 5, 2, 6, 1),
    Sketcher.Constraint("Coincident", 6, 2, 7, 1),
    Sketcher.Constraint("Coincident", 7, 2, 4, 1),
    Sketcher.Constraint("Vertical", 0),
    Sketcher.Constraint("Horizontal", 1),
    Sketcher.Constraint("Vertical", 2),
    Sketcher.Constraint("Horizontal", 3),
    Sketcher.Constraint("Vertical", 4),
    Sketcher.Constraint("Horizontal", 5),
    Sketcher.Constraint("Vertical", 6),
    Sketcher.Constraint("Horizontal", 7),
    Sketcher.Constraint("Symmetric", 1, 2, 4, 2, -2),
    Sketcher.Constraint("Symmetric", 3, 2, 6, 2, -2),
    Sketcher.Constraint("DistanceX", 1, 1, 1, 2, Q("1.7 mm")),
    Sketcher.Constraint("DistanceY", 0, 2, 0, 1, Q("3.9 mm")),
    Sketcher.Constraint("DistanceY", 0, 2, -1, 1, Q("1.4 mm")),
    Sketcher.Constraint("DistanceX", 1, 2, 4, 2, Q("2.9 mm")),
])
pocket1 = doc.addObject("PartDesign::Pocket", "Pocket")
body15.addObject(pocket1)
pocket1.Profile = sketch17
pocket1.Length = 0.7
body16 = doc.addObject("PartDesign::Body", "Body015")

# Sketch on XY plane
sketch18 = doc.addObject("Sketcher::SketchObject", "Sketch017")
body16.addObject(sketch18)
sketch18.AttachmentSupport = (doc.getObject("XY_Plane015"), [""])
sketch18.MapMode = "FlatFace"
sketch18.addGeometry([
    Part.LineSegment(App.Vector(2.9, -4.2, 0), App.Vector(2.9, -4.8, 0)),
    Part.LineSegment(App.Vector(2.9, -4.8, 0), App.Vector(2.2, -4.8, 0)),
    Part.LineSegment(App.Vector(2.2, -4.8, 0), App.Vector(2.2, -4.2, 0)),
    Part.LineSegment(App.Vector(2.2, -4.2, 0), App.Vector(2.9, -4.2, 0)),
], False)
sketch18.addConstraint([
    Sketcher.Constraint("Coincident", 0, 2, 1, 1),
    Sketcher.Constraint("Coincident", 1, 2, 2, 1),
    Sketcher.Constraint("Coincident", 2, 2, 3, 1),
    Sketcher.Constraint("Coincident", 3, 2, 0, 1),
    Sketcher.Constraint("Vertical", 0),
    Sketcher.Constraint("Horizontal", 1),
    Sketcher.Constraint("Vertical", 2),
    Sketcher.Constraint("Horizontal", 3),
    Sketcher.Constraint("Equal", 3, 0),
    Sketcher.Constraint("DistanceX", 1, 2, 1, 1, Q("0.7 mm")),
    Sketcher.Constraint("DistanceX", -1, 1, 0, 2, Q("2.89 mm")),
    Sketcher.Constraint("DistanceY", 0, 2, -1, 1, Q("4.85 mm")),
])
pad17 = doc.addObject("PartDesign::Pad", "Pad016")
body16.addObject(pad17)
pad17.Profile = sketch18
pad17.Length = 2.5
pad17.Reversed = True
body17 = doc.addObject("PartDesign::Body", "Body016")

# Sketch on XY plane
sketch19 = doc.addObject("Sketcher::SketchObject", "Sketch018")
body17.addObject(sketch19)
sketch19.AttachmentSupport = (doc.getObject("XY_Plane016"), [""])
sketch19.MapMode = "FlatFace"
sketch19.addGeometry([
    Part.LineSegment(App.Vector(0.3, -4.2, 0), App.Vector(0.3, -4.8, 0)),
    Part.LineSegment(App.Vector(0.3, -4.8, 0), App.Vector(-0.3, -4.8, 0)),
    Part.LineSegment(App.Vector(-0.3, -4.8, 0), App.Vector(-0.3, -4.2, 0)),
    Part.LineSegment(App.Vector(-0.3, -4.2, 0), App.Vector(0.3, -4.2, 0)),
], False)
sketch19.addConstraint([
    Sketcher.Constraint("Coincident", 0, 2, 1, 1),
    Sketcher.Constraint("Coincident", 1, 2, 2, 1),
    Sketcher.Constraint("Coincident", 2, 2, 3, 1),
    Sketcher.Constraint("Coincident", 3, 2, 0, 1),
    Sketcher.Constraint("Vertical", 0),
    Sketcher.Constraint("Horizontal", 1),
    Sketcher.Constraint("Vertical", 2),
    Sketcher.Constraint("Horizontal", 3),
    Sketcher.Constraint("Equal", 3, 0),
    Sketcher.Constraint("DistanceX", 1, 2, 1, 1, Q("0.7 mm")),
    Sketcher.Constraint("DistanceX", -1, 1, 0, 2, Q("0.35 mm")),
    Sketcher.Constraint("DistanceY", 0, 2, -1, 1, Q("4.85 mm")),
])
pad18 = doc.addObject("PartDesign::Pad", "Pad017")
body17.addObject(pad18)
pad18.Profile = sketch19
pad18.Length = 2.5
pad18.Reversed = True
body18 = doc.addObject("PartDesign::Body", "Body017")

# Sketch on XY plane
sketch20 = doc.addObject("Sketcher::SketchObject", "Sketch019")
body18.addObject(sketch20)
sketch20.AttachmentSupport = (doc.getObject("XY_Plane017"), [""])
sketch20.MapMode = "FlatFace"
sketch20.addGeometry([
    Part.LineSegment(App.Vector(-2.2, -4.2, 0), App.Vector(-2.2, -4.8, 0)),
    Part.LineSegment(App.Vector(-2.2, -4.8, 0), App.Vector(-2.9, -4.8, 0)),
    Part.LineSegment(App.Vector(-2.9, -4.8, 0), App.Vector(-2.9, -4.2, 0)),
    Part.LineSegment(App.Vector(-2.9, -4.2, 0), App.Vector(-2.2, -4.2, 0)),
], False)
sketch20.addConstraint([
    Sketcher.Constraint("Coincident", 0, 2, 1, 1),
    Sketcher.Constraint("Coincident", 1, 2, 2, 1),
    Sketcher.Constraint("Coincident", 2, 2, 3, 1),
    Sketcher.Constraint("Coincident", 3, 2, 0, 1),
    Sketcher.Constraint("Vertical", 0),
    Sketcher.Constraint("Horizontal", 1),
    Sketcher.Constraint("Vertical", 2),
    Sketcher.Constraint("Horizontal", 3),
    Sketcher.Constraint("Equal", 3, 0),
    Sketcher.Constraint("DistanceX", 1, 2, 1, 1, Q("0.7 mm")),
    Sketcher.Constraint("DistanceX", 0, 2, -1, 1, Q("2.19 mm")),
    Sketcher.Constraint("DistanceY", 0, 2, -1, 1, Q("4.85 mm")),
])
pad19 = doc.addObject("PartDesign::Pad", "Pad018")
body18.addObject(pad19)
pad19.Profile = sketch20
pad19.Length = 2.5
pad19.Reversed = True
body19 = doc.addObject("PartDesign::Body", "Body018")

# Sketch on XY plane
sketch21 = doc.addObject("Sketcher::SketchObject", "Sketch020")
body19.addObject(sketch21)
sketch21.AttachmentSupport = (doc.getObject("XY_Plane018"), [""])
sketch21.MapMode = "FlatFace"
sketch21.AttachmentOffset = App.Placement(App.Vector(0, 0, 1.685), App.Rotation())
sketch21.addGeometry([
    Part.LineSegment(App.Vector(2.59, -15.1, 0), App.Vector(2.59, -15.5, 0)),
    Part.LineSegment(App.Vector(2.59, -15.5, 0), App.Vector(2.19, -15.5, 0)),
    Part.LineSegment(App.Vector(2.19, -15.5, 0), App.Vector(2.19, -15.1, 0)),
    Part.LineSegment(App.Vector(2.19, -15.1, 0), App.Vector(2.59, -15.1, 0)),
], False)
sketch21.addConstraint([
    Sketcher.Constraint("Coincident", 0, 2, 1, 1),
    Sketcher.Constraint("Coincident", 1, 2, 2, 1),
    Sketcher.Constraint("Coincident", 2, 2, 3, 1),
    Sketcher.Constraint("Coincident", 3, 2, 0, 1),
    Sketcher.Constraint("Vertical", 0),
    Sketcher.Constraint("Horizontal", 1),
    Sketcher.Constraint("Vertical", 2),
    Sketcher.Constraint("Horizontal", 3),
    Sketcher.Constraint("Equal", 3, 0),
    Sketcher.Constraint("DistanceX", 1, 2, 1, 1, Q("0.4 mm")),
    Sketcher.Constraint("DistanceY", 0, 2, -1, 1, Q("15.5 mm")),
    Sketcher.Constraint("DistanceX", -1, 1, 0, 2, Q("2.5875 mm")),
])
pad20 = doc.addObject("PartDesign::Pad", "Pad019")
body19.addObject(pad20)
pad20.Profile = sketch21
pad20.Length = 0.785
pad20.Reversed = True
body20 = doc.addObject("PartDesign::Body", "Body019")

# Sketch on XY plane
sketch22 = doc.addObject("Sketcher::SketchObject", "Sketch021")
body20.addObject(sketch22)
sketch22.AttachmentSupport = (doc.getObject("XY_Plane019"), [""])
sketch22.MapMode = "FlatFace"
sketch22.AttachmentOffset = App.Placement(App.Vector(0, 0, 1.685), App.Rotation())
sketch22.addGeometry([
    Part.LineSegment(App.Vector(2.59, -13.54, 0), App.Vector(2.59, -13.94, 0)),
    Part.LineSegment(App.Vector(2.59, -13.94, 0), App.Vector(2.19, -13.94, 0)),
    Part.LineSegment(App.Vector(2.19, -13.94, 0), App.Vector(2.19, -13.54, 0)),
    Part.LineSegment(App.Vector(2.19, -13.54, 0), App.Vector(2.59, -13.54, 0)),
], False)
sketch22.addConstraint([
    Sketcher.Constraint("Coincident", 0, 2, 1, 1),
    Sketcher.Constraint("Coincident", 1, 2, 2, 1),
    Sketcher.Constraint("Coincident", 2, 2, 3, 1),
    Sketcher.Constraint("Coincident", 3, 2, 0, 1),
    Sketcher.Constraint("Vertical", 0),
    Sketcher.Constraint("Horizontal", 1),
    Sketcher.Constraint("Vertical", 2),
    Sketcher.Constraint("Horizontal", 3),
    Sketcher.Constraint("Equal", 3, 0),
    Sketcher.Constraint("DistanceX", 1, 2, 1, 1, Q("0.4 mm")),
    Sketcher.Constraint("DistanceY", 0, 2, -1, 1, Q("13.94 mm")),
    Sketcher.Constraint("DistanceX", -1, 1, 0, 2, Q("2.5875 mm")),
])
pad21 = doc.addObject("PartDesign::Pad", "Pad020")
body20.addObject(pad21)
pad21.Profile = sketch22
pad21.Length = 0.785
pad21.Reversed = True
body21 = doc.addObject("PartDesign::Body", "Body020")

# Sketch on XY plane
sketch23 = doc.addObject("Sketcher::SketchObject", "Sketch022")
body21.addObject(sketch23)
sketch23.AttachmentSupport = (doc.getObject("XY_Plane020"), [""])
sketch23.MapMode = "FlatFace"
sketch23.AttachmentOffset = App.Placement(App.Vector(0, 0, 1.685), App.Rotation())
sketch23.addGeometry([
    Part.LineSegment(App.Vector(2.59, -11.98, 0), App.Vector(2.59, -12.38, 0)),
    Part.LineSegment(App.Vector(2.59, -12.38, 0), App.Vector(2.19, -12.38, 0)),
    Part.LineSegment(App.Vector(2.19, -12.38, 0), App.Vector(2.19, -11.98, 0)),
    Part.LineSegment(App.Vector(2.19, -11.98, 0), App.Vector(2.59, -11.98, 0)),
], False)
sketch23.addConstraint([
    Sketcher.Constraint("Coincident", 0, 2, 1, 1),
    Sketcher.Constraint("Coincident", 1, 2, 2, 1),
    Sketcher.Constraint("Coincident", 2, 2, 3, 1),
    Sketcher.Constraint("Coincident", 3, 2, 0, 1),
    Sketcher.Constraint("Vertical", 0),
    Sketcher.Constraint("Horizontal", 1),
    Sketcher.Constraint("Vertical", 2),
    Sketcher.Constraint("Horizontal", 3),
    Sketcher.Constraint("Equal", 3, 0),
    Sketcher.Constraint("DistanceX", 1, 2, 1, 1, Q("0.4 mm")),
    Sketcher.Constraint("DistanceY", 0, 2, -1, 1, Q("12.38 mm")),
    Sketcher.Constraint("DistanceX", -1, 1, 0, 2, Q("2.5875 mm")),
])
pad22 = doc.addObject("PartDesign::Pad", "Pad021")
body21.addObject(pad22)
pad22.Profile = sketch23
pad22.Length = 0.785
pad22.Reversed = True
body22 = doc.addObject("PartDesign::Body", "Body021")

# Sketch on XY plane
sketch24 = doc.addObject("Sketcher::SketchObject", "Sketch023")
body22.addObject(sketch24)
sketch24.AttachmentSupport = (doc.getObject("XY_Plane021"), [""])
sketch24.MapMode = "FlatFace"
sketch24.AttachmentOffset = App.Placement(App.Vector(0, 0, 1.685), App.Rotation())
sketch24.addGeometry([
    Part.LineSegment(App.Vector(2.59, -10.42, 0), App.Vector(2.59, -10.82, 0)),
    Part.LineSegment(App.Vector(2.59, -10.82, 0), App.Vector(2.19, -10.82, 0)),
    Part.LineSegment(App.Vector(2.19, -10.82, 0), App.Vector(2.19, -10.42, 0)),
    Part.LineSegment(App.Vector(2.19, -10.42, 0), App.Vector(2.59, -10.42, 0)),
], False)
sketch24.addConstraint([
    Sketcher.Constraint("Coincident", 0, 2, 1, 1),
    Sketcher.Constraint("Coincident", 1, 2, 2, 1),
    Sketcher.Constraint("Coincident", 2, 2, 3, 1),
    Sketcher.Constraint("Coincident", 3, 2, 0, 1),
    Sketcher.Constraint("Vertical", 0),
    Sketcher.Constraint("Horizontal", 1),
    Sketcher.Constraint("Vertical", 2),
    Sketcher.Constraint("Horizontal", 3),
    Sketcher.Constraint("Equal", 3, 0),
    Sketcher.Constraint("DistanceX", 1, 2, 1, 1, Q("0.4 mm")),
    Sketcher.Constraint("DistanceY", 0, 2, -1, 1, Q("10.82 mm")),
    Sketcher.Constraint("DistanceX", -1, 1, 0, 2, Q("2.5875 mm")),
])
pad23 = doc.addObject("PartDesign::Pad", "Pad022")
body22.addObject(pad23)
pad23.Profile = sketch24
pad23.Length = 0.785
pad23.Reversed = True
body23 = doc.addObject("PartDesign::Body", "Body022")
doc.recompute()

mirroring = doc.addObject("Part::Mirroring", "Mirroring")
mirroring.Source = body19
mirroring.Base = App.Vector(0.2325, 0, 0)
mirroring.Normal = App.Vector(1, 0, 0)
body23.BaseFeature = mirroring
doc.recompute()
body24 = doc.addObject("PartDesign::Body", "Body023")
doc.recompute()

mirroring2 = doc.addObject("Part::Mirroring", "Mirroring001")
mirroring2.Source = body20
mirroring2.Base = App.Vector(0.2325, 0, 0)
mirroring2.Normal = App.Vector(1, 0, 0)
body24.BaseFeature = mirroring2
doc.recompute()
body25 = doc.addObject("PartDesign::Body", "Body024")
doc.recompute()

mirroring3 = doc.addObject("Part::Mirroring", "Mirroring002")
mirroring3.Source = body21
mirroring3.Base = App.Vector(0.2325, 0, 0)
mirroring3.Normal = App.Vector(1, 0, 0)
body25.BaseFeature = mirroring3
doc.recompute()
body26 = doc.addObject("PartDesign::Body", "Body025")
doc.recompute()

mirroring4 = doc.addObject("Part::Mirroring", "Mirroring003")
mirroring4.Source = body22
mirroring4.Base = App.Vector(0.2325, 0, 0)
mirroring4.Normal = App.Vector(1, 0, 0)
body26.BaseFeature = mirroring4
doc.recompute()

doc.recompute()
